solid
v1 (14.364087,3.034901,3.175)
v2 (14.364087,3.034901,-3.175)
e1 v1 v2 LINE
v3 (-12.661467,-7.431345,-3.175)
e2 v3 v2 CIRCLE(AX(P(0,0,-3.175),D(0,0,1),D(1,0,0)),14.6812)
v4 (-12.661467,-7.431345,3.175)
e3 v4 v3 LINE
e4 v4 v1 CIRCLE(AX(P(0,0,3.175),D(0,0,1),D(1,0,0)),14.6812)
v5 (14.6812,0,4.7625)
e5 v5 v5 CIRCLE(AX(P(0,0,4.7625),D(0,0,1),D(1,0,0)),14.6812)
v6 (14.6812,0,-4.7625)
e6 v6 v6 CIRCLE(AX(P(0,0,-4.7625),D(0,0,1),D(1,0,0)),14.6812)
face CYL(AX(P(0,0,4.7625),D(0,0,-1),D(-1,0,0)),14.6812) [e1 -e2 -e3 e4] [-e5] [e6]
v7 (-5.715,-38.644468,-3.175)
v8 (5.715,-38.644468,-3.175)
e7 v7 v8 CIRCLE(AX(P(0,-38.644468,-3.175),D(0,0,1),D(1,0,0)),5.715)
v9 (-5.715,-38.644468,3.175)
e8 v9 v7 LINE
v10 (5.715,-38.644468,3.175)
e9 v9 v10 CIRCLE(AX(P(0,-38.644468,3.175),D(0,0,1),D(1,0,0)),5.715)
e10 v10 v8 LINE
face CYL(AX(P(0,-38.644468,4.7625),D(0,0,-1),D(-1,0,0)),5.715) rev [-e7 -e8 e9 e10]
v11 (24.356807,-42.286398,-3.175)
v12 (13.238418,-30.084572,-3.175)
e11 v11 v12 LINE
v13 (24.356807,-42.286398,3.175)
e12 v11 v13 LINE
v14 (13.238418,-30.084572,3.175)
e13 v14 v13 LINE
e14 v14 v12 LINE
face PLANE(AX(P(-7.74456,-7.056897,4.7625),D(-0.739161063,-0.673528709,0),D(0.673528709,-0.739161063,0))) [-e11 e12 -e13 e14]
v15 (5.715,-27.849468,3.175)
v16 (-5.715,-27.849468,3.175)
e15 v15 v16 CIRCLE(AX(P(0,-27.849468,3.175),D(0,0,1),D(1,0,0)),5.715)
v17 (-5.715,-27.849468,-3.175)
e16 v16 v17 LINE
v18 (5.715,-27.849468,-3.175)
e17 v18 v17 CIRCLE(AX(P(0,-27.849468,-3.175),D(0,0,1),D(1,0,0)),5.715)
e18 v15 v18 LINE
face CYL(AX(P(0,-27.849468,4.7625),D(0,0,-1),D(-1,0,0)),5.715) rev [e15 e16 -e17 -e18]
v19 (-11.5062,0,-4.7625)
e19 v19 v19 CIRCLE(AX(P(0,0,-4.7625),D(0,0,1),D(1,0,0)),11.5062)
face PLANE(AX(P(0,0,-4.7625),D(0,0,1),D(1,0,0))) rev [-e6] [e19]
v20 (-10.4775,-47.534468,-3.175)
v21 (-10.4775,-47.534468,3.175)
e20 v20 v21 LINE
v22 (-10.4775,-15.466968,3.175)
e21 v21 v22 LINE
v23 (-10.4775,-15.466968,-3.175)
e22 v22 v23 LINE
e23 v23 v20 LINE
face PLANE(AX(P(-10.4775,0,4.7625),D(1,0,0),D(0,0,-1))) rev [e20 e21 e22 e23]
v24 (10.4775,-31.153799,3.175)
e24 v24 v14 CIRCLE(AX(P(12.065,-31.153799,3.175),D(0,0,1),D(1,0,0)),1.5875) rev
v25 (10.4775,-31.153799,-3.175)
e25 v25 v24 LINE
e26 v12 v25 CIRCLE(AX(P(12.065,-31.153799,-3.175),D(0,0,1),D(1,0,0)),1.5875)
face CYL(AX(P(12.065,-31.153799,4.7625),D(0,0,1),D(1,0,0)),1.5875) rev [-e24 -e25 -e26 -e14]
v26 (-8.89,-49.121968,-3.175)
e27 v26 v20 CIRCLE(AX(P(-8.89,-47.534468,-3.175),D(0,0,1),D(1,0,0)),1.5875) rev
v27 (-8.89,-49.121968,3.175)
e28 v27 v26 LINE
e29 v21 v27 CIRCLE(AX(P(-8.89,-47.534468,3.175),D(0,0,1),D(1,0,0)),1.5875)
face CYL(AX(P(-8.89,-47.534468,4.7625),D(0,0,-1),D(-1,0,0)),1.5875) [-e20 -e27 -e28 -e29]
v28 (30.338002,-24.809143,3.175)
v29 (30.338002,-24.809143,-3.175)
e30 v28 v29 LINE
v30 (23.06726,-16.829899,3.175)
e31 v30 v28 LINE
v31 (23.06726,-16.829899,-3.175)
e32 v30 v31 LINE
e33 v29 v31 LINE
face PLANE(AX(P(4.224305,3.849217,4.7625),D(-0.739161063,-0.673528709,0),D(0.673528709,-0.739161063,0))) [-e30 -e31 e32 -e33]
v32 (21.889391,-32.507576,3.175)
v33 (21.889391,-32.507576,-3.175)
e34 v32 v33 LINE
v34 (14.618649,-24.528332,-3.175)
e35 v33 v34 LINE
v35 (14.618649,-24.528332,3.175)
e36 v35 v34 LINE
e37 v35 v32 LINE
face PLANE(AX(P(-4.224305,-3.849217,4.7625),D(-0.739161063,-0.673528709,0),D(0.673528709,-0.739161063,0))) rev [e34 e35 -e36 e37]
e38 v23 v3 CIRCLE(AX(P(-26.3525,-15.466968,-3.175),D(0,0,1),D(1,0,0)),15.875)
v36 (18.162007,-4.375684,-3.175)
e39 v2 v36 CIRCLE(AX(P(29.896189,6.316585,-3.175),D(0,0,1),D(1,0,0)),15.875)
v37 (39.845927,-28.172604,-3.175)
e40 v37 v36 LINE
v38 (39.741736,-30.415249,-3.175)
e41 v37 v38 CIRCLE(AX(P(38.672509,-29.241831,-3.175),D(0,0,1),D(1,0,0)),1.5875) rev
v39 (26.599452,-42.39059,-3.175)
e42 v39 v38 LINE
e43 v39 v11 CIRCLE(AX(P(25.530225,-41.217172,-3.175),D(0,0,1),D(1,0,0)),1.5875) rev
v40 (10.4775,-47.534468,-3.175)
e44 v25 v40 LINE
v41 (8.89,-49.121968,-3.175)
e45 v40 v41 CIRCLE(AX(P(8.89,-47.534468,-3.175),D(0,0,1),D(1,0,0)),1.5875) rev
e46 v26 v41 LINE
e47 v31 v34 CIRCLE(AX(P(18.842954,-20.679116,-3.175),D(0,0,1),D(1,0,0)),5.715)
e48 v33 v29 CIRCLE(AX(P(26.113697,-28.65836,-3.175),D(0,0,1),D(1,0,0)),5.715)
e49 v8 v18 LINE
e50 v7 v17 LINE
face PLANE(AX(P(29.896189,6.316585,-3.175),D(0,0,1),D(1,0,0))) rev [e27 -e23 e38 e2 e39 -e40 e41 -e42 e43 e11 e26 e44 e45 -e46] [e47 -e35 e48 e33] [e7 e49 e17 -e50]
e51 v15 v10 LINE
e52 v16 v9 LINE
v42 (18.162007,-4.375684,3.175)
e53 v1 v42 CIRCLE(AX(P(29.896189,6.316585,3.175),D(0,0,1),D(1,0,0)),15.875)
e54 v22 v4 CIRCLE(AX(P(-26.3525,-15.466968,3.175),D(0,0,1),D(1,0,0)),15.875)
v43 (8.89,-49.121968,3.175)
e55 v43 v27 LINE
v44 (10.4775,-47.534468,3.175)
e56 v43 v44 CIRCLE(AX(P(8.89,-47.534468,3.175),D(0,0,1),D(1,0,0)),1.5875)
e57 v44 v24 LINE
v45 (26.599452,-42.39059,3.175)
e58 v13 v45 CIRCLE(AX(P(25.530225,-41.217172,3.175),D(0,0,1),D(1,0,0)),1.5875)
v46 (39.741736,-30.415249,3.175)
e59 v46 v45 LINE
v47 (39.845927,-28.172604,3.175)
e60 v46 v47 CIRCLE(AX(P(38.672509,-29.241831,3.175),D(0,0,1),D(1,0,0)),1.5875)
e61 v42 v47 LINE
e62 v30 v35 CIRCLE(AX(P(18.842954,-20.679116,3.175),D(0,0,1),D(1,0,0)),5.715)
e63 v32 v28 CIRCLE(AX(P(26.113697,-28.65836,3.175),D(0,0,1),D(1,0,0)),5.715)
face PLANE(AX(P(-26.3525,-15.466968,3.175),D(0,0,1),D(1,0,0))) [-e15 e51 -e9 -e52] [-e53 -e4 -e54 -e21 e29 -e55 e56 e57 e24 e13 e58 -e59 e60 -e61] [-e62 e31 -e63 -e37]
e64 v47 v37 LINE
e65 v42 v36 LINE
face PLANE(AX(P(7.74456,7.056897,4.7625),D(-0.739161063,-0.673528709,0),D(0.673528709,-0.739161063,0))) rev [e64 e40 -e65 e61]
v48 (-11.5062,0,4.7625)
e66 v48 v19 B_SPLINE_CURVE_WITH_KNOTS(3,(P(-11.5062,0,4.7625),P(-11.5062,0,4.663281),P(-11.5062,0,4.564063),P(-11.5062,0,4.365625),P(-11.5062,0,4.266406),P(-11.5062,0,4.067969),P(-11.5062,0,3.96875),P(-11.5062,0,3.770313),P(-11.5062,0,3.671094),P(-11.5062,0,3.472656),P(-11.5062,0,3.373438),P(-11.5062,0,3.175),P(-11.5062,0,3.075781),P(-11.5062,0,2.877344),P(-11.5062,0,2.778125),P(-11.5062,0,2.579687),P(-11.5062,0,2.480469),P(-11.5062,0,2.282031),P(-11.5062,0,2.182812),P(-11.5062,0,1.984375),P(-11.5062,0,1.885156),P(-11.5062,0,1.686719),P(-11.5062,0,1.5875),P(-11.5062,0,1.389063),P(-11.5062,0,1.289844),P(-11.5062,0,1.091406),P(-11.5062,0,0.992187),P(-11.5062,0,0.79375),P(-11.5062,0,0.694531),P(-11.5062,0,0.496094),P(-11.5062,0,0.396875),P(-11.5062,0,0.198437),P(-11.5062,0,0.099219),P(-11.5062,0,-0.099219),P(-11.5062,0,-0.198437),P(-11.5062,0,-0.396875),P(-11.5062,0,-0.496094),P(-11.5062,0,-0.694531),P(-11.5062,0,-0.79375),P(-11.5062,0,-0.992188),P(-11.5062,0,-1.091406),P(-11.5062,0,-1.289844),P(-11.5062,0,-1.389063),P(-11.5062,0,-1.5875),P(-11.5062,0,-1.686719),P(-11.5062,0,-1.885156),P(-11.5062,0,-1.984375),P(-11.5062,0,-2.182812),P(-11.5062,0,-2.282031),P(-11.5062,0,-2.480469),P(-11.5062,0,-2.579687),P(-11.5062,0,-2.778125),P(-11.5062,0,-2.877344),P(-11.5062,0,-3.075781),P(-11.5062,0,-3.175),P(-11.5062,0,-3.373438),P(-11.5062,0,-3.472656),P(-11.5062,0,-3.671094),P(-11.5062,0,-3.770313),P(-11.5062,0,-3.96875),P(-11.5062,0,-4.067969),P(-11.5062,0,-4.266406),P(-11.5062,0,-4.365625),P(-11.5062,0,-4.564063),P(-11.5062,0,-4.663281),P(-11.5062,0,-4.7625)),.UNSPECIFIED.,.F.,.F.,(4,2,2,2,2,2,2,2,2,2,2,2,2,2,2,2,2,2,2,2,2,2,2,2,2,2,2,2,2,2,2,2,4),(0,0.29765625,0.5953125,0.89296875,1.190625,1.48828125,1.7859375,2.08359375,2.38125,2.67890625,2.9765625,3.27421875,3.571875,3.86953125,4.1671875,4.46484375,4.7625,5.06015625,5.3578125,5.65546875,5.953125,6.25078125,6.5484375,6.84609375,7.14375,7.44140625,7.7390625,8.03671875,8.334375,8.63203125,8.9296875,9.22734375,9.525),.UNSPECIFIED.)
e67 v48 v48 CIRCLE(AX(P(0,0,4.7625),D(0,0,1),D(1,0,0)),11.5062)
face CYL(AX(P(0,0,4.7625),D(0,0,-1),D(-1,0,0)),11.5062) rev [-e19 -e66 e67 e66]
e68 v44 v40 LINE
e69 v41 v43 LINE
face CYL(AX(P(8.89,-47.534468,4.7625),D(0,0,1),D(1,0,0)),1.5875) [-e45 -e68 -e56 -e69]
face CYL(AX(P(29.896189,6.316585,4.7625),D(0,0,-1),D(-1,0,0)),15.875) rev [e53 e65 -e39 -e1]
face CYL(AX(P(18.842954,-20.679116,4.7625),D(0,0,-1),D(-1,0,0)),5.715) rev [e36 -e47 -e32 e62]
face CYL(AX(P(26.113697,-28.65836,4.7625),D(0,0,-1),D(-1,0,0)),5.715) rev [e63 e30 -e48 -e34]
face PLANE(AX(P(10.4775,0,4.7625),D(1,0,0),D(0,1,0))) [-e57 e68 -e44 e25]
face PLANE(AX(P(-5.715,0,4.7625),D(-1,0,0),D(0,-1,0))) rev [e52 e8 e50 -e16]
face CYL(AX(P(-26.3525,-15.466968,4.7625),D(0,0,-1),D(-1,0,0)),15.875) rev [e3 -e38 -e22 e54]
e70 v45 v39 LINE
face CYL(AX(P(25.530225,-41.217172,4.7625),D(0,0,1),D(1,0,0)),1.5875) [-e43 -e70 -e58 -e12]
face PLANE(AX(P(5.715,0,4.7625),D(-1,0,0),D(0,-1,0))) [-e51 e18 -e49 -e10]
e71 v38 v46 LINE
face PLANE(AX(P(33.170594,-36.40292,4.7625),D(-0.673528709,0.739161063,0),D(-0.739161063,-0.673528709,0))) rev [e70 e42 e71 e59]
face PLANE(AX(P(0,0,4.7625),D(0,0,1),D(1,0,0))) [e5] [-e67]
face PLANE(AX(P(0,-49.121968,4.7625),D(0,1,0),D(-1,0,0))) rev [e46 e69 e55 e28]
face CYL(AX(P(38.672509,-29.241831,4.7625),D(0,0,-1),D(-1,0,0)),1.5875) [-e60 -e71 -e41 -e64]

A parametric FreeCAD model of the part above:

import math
import FreeCAD as App
import Part
import Sketcher
from FreeCAD import Vector
Q = App.Units.Quantity


def edges_at(feature, points):
    """Names of the edges that pass closest to the given points."""
    edges = feature.Shape.Edges
    near = lambda p: min(range(len(edges)), key=lambda i: edges[i].distToShape(Part.Vertex(*p))[0])
    return sorted({f"Edge{near(p) + 1}" for p in points})

doc = App.newDocument("Part")
body = doc.addObject("PartDesign::Body", "Body")

# Sketch on XY plane
sketch1 = body.newObject("Sketcher::SketchObject", "Sketch")
sketch1.AttachmentSupport = (doc.getObject("XY_Plane"), [""])
sketch1.MapMode = "FlatFace"
sketch1.addGeometry([
    Part.ArcOfCircle(Part.Circle(Vector(-26.3525, -15.466968, 0), Vector(0, 0, 1), 15.875), math.radians(0), math.radians(30.409782)),  # 0
    Part.LineSegment(Vector(-10.4775, -15.466968, 0), Vector(-10.4775, -49.121968, 0)),  # 1
    Part.LineSegment(Vector(-10.4775, -49.121968, 0), Vector(10.4775, -49.121968, 0)),  # 2
    Part.LineSegment(Vector(10.4775, -49.121968, 0), Vector(10.4775, -27.054615, 0)),  # 3
    Part.LineSegment(Vector(10.4775, -27.054615, 0), Vector(25.426034, -43.459817, 0)),  # 4
    Part.LineSegment(Vector(25.426034, -43.459817, 0), Vector(40.915154, -29.346023, 0)),  # 5
    Part.LineSegment(Vector(40.915154, -29.346023, 0), Vector(18.162007, -4.375684, 0)),  # 6
    Part.ArcOfCircle(Part.Circle(Vector(29.896189, 6.316585, 0), Vector(0, 0, 1), 15.875), math.radians(-168.069782), math.radians(-137.66)),  # 7
    Part.ArcOfCircle(Part.Circle(Vector(0, 0, 0), Vector(0, 0, 1), 14.6812), math.radians(11.930218), math.radians(210.409782)),  # 8
    Part.LineSegment(Vector(5.715, -27.849468, 0), Vector(5.715, -38.644468, 0)),  # 9
    Part.ArcOfCircle(Part.Circle(Vector(0, -38.644468, 0), Vector(0, 0, 1), 5.715), math.radians(180), math.radians(360)),  # 10
    Part.LineSegment(Vector(-5.715, -38.644468, 0), Vector(-5.715, -27.849468, 0)),  # 11
    Part.ArcOfCircle(Part.Circle(Vector(0, -27.849468, 0), Vector(0, 0, 1), 5.715), math.radians(0), math.radians(180)),  # 12
    Part.LineSegment(Vector(23.06726, -16.829899, 0), Vector(30.338002, -24.809143, 0)),  # 13
    Part.ArcOfCircle(Part.Circle(Vector(26.113697, -28.65836, 0), Vector(0, 0, 1), 5.715), math.radians(-137.66), math.radians(42.34)),  # 14
    Part.LineSegment(Vector(21.889391, -32.507576, 0), Vector(14.618649, -24.528332, 0)),  # 15
    Part.ArcOfCircle(Part.Circle(Vector(18.842954, -20.679116, 0), Vector(0, 0, 1), 5.715), math.radians(42.34), math.radians(222.34)),  # 16
    Part.Circle(Vector(0, 0, 0), Vector(0, 0, 1), 11.5062),  # 17
], False)
sketch1.addConstraint([
    Sketcher.Constraint("Tangent", 0, 1, 1, 1),
    Sketcher.Constraint("Coincident", 1, 2, 2, 1),
    Sketcher.Constraint("Coincident", 2, 2, 3, 1),
    Sketcher.Constraint("Coincident", 3, 2, 4, 1),
    Sketcher.Constraint("Coincident", 4, 2, 5, 1),
    Sketcher.Constraint("Coincident", 5, 2, 6, 1),
    Sketcher.Constraint("Tangent", 6, 2, 7, 2),
    Sketcher.Constraint("Tangent", 7, 1, 8, 1),
    Sketcher.Constraint("Tangent", 8, 2, 0, 2),
    Sketcher.Constraint("Tangent", 9, 2, 10, 2),
    Sketcher.Constraint("Tangent", 10, 1, 11, 1),
    Sketcher.Constraint("Tangent", 11, 2, 12, 2),
    Sketcher.Constraint("Tangent", 12, 1, 9, 1),
    Sketcher.Constraint("Tangent", 13, 2, 14, 2),
    Sketcher.Constraint("Tangent", 14, 1, 15, 1),
    Sketcher.Constraint("Tangent", 15, 2, 16, 2),
    Sketcher.Constraint("Tangent", 16, 1, 13, 1),
    Sketcher.Constraint("Vertical", 1),
    Sketcher.Constraint("Horizontal", 2),
    Sketcher.Constraint("Vertical", 3),
    Sketcher.Constraint("Vertical", 9),
    Sketcher.Constraint("Vertical", 11),
    Sketcher.Constraint("Coincident", 8, 3, -1, 1),
    Sketcher.Constraint("Coincident", 17, 3, -1, 1),
    Sketcher.Constraint("Equal", 0, 7),
    Sketcher.Constraint("Equal", 12, 14),
    Sketcher.Constraint("Equal", 14, 16),
    Sketcher.Constraint("PointOnObject", 10, 3, -2),
    Sketcher.Constraint("Perpendicular", 4, 5),
    Sketcher.Constraint("Perpendicular", 5, 6),
    Sketcher.Constraint("Parallel", 6, 13),
    Sketcher.Constraint("Diameter", 17, Q("0.906 in")),
    Sketcher.Constraint("Radius", 0, Q("0.625 in")),
    Sketcher.Constraint("Radius", 8, Q("0.578 in")),
    Sketcher.Constraint("Radius", 10, Q("0.225 in")),
    Sketcher.Constraint("Distance", 6, Q("1.33 in")),
    Sketcher.Constraint("DistanceX", 2, 1, 2, 2, Q("0.825 in")),
    Sketcher.Constraint("DistanceY", 1, 2, 1, 1, Q("1.325 in")),
    Sketcher.Constraint("DistanceY", 9, 2, 9, 1, Q("0.425 in")),
    Sketcher.Constraint("Angle", 4, Q("-47.66 deg")),
    Sketcher.Constraint("Distance", 5, Q("0.825 in")),
    Sketcher.Constraint("Distance", 13, Q("0.425 in")),
    Sketcher.Constraint("DistanceX", 9, 2, 2, 2, Q("0.1875 in")),
    Sketcher.Constraint("DistanceY", 10, 3, 0, 3, Q("0.9125 in")),
    Sketcher.Constraint("DistanceX", 7, 1, 7, 3, Q("0.6115001 in")),
    Sketcher.Constraint("DistanceY", 16, 1, -1, 1, Q("16.829899 mm")),
    Sketcher.Constraint("DistanceX", 16, 3, 5, 2, Q("22.0722 mm")),
])
pad1 = body.newObject("PartDesign::Pad", "Pad")
pad1.Profile = sketch1
pad1.Length = Q("0.375 in")
pad1.Midplane = True

# Sketch on XY plane
sketch2 = body.newObject("Sketcher::SketchObject", "Sketch001")
sketch2.AttachmentSupport = (doc.getObject("XY_Plane"), [""])
sketch2.MapMode = "FlatFace"
sketch2.AttachmentOffset = App.Placement(Vector(0, 0, 0.1875 * 25.4), App.Rotation())
sketch2.addGeometry([
    Part.ArcOfCircle(Part.Circle(Vector(0, 0, 0), Vector(0, 0, 1), 14.6812), math.radians(-149.590218), math.radians(11.930218)),  # 0
    Part.ArcOfCircle(Part.Circle(Vector(-26.3525, -15.466968, 0), Vector(0, 0, 1), 15.875), math.radians(0), math.radians(30.409782)),  # 1
    Part.LineSegment(Vector(-10.4775, -15.466968, 0), Vector(-10.4775, -49.121968, 0)),  # 2
    Part.LineSegment(Vector(-10.4775, -49.121968, 0), Vector(10.4775, -49.121968, 0)),  # 3
    Part.LineSegment(Vector(10.4775, -49.121968, 0), Vector(10.4775, -27.054615, 0)),  # 4
    Part.LineSegment(Vector(10.4775, -27.054615, 0), Vector(25.426034, -43.459817, 0)),  # 5
    Part.LineSegment(Vector(25.426034, -43.459817, 0), Vector(40.915154, -29.346023, 0)),  # 6
    Part.LineSegment(Vector(40.915154, -29.346023, 0), Vector(18.162007, -4.375684, 0)),  # 7
    Part.ArcOfCircle(Part.Circle(Vector(29.896189, 6.316585, 0), Vector(0, 0, 1), 15.875), math.radians(-168.069782), math.radians(-137.66)),  # 8
    Part.LineSegment(Vector(5.715, -27.849468, 0), Vector(5.715, -38.644468, 0)),  # 9
    Part.ArcOfCircle(Part.Circle(Vector(0, -38.644468, 0), Vector(0, 0, 1), 5.715), math.radians(180), math.radians(360)),  # 10
    Part.LineSegment(Vector(-5.715, -38.644468, 0), Vector(-5.715, -27.849468, 0)),  # 11
    Part.ArcOfCircle(Part.Circle(Vector(0, -27.849468, 0), Vector(0, 0, 1), 5.715), math.radians(0), math.radians(180)),  # 12
    Part.LineSegment(Vector(23.06726, -16.829899, 0), Vector(30.338002, -24.809143, 0)),  # 13
    Part.ArcOfCircle(Part.Circle(Vector(26.113697, -28.65836, 0), Vector(0, 0, 1), 5.715), math.radians(-137.66), math.radians(42.34)),  # 14
    Part.LineSegment(Vector(21.889391, -32.507576, 0), Vector(14.618649, -24.528332, 0)),  # 15
    Part.ArcOfCircle(Part.Circle(Vector(18.842954, -20.679116, 0), Vector(0, 0, 1), 5.715), math.radians(42.34), math.radians(222.34)),  # 16
], False)
sketch2.addConstraint([
    Sketcher.Constraint("Tangent", 0, 1, 1, 2),
    Sketcher.Constraint("Tangent", 1, 1, 2, 1),
    Sketcher.Constraint("Coincident", 2, 2, 3, 1),
    Sketcher.Constraint("Coincident", 3, 2, 4, 1),
    Sketcher.Constraint("Coincident", 4, 2, 5, 1),
    Sketcher.Constraint("Coincident", 5, 2, 6, 1),
    Sketcher.Constraint("Coincident", 6, 2, 7, 1),
    Sketcher.Constraint("Tangent", 7, 2, 8, 2),
    Sketcher.Constraint("Tangent", 8, 1, 0, 2),
    Sketcher.Constraint("Tangent", 9, 2, 10, 2),
    Sketcher.Constraint("Tangent", 10, 1, 11, 1),
    Sketcher.Constraint("Tangent", 11, 2, 12, 2),
    Sketcher.Constraint("Tangent", 12, 1, 9, 1),
    Sketcher.Constraint("Tangent", 13, 2, 14, 2),
    Sketcher.Constraint("Tangent", 14, 1, 15, 1),
    Sketcher.Constraint("Tangent", 15, 2, 16, 2),
    Sketcher.Constraint("Tangent", 16, 1, 13, 1),
    Sketcher.Constraint("Vertical", 2),
    Sketcher.Constraint("Horizontal", 3),
    Sketcher.Constraint("Vertical", 4),
    Sketcher.Constraint("Vertical", 9),
    Sketcher.Constraint("Vertical", 11),
    Sketcher.Constraint("Coincident", 0, 3, -1, 1),
    Sketcher.Constraint("Equal", 1, 8),
    Sketcher.Constraint("Equal", 12, 14),
    Sketcher.Constraint("Equal", 14, 16),
    Sketcher.Constraint("PointOnObject", 10, 3, -2),
    Sketcher.Constraint("Perpendicular", 5, 6),
    Sketcher.Constraint("Perpendicular", 6, 7),
    Sketcher.Constraint("Parallel", 7, 13),
    Sketcher.Constraint("Radius", 0, Q("0.578 in")),
    Sketcher.Constraint("Radius", 1, Q("0.625 in")),
    Sketcher.Constraint("Radius", 10, Q("0.225 in")),
    Sketcher.Constraint("Distance", 7, Q("1.33 in")),
    Sketcher.Constraint("DistanceX", 3, 1, 3, 2, Q("0.825 in")),
    Sketcher.Constraint("DistanceY", 2, 2, 2, 1, Q("1.325 in")),
    Sketcher.Constraint("DistanceY", 9, 2, 9, 1, Q("0.425 in")),
    Sketcher.Constraint("Angle", 5, Q("-47.66 deg")),
    Sketcher.Constraint("Distance", 6, Q("0.825 in")),
    Sketcher.Constraint("Distance", 13, Q("0.425 in")),
    Sketcher.Constraint("DistanceX", 9, 2, 3, 2, Q("0.1875 in")),
    Sketcher.Constraint("DistanceY", 10, 3, 1, 3, Q("0.9125 in")),
    Sketcher.Constraint("DistanceX", 8, 1, 8, 3, Q("0.6115001 in")),
    Sketcher.Constraint("DistanceY", 16, 1, -1, 1, Q("16.829899 mm")),
    Sketcher.Constraint("DistanceX", 16, 3, 6, 2, Q("22.0722 mm")),
])
pocket1 = body.newObject("PartDesign::Pocket", "Pocket")
pocket1.Profile = sketch2
pocket1.Length = Q("0.0625 in")

# Sketch on XY plane
sketch3 = body.newObject("Sketcher::SketchObject", "Sketch002")
sketch3.AttachmentSupport = (doc.getObject("XY_Plane"), [""])
sketch3.MapMode = "FlatFace"
sketch3.AttachmentOffset = App.Placement(Vector(0, 0, -0.125 * 25.4), App.Rotation())
sketch3.addGeometry([
    Part.ArcOfCircle(Part.Circle(Vector(0, 0, 0), Vector(0, 0, 1), 14.6812), math.radians(-149.590218), math.radians(11.930218)),  # 0
    Part.ArcOfCircle(Part.Circle(Vector(-26.3525, -15.466968, 0), Vector(0, 0, 1), 15.875), math.radians(0), math.radians(30.409782)),  # 1
    Part.LineSegment(Vector(-10.4775, -15.466968, 0), Vector(-10.4775, -49.121968, 0)),  # 2
    Part.LineSegment(Vector(-10.4775, -49.121968, 0), Vector(10.4775, -49.121968, 0)),  # 3
    Part.LineSegment(Vector(10.4775, -49.121968, 0), Vector(10.4775, -27.054615, 0)),  # 4
    Part.LineSegment(Vector(10.4775, -27.054615, 0), Vector(25.426034, -43.459817, 0)),  # 5
    Part.LineSegment(Vector(25.426034, -43.459817, 0), Vector(40.915154, -29.346023, 0)),  # 6
    Part.LineSegment(Vector(40.915154, -29.346023, 0), Vector(18.162007, -4.375684, 0)),  # 7
    Part.ArcOfCircle(Part.Circle(Vector(29.896189, 6.316585, 0), Vector(0, 0, 1), 15.875), math.radians(-168.069782), math.radians(-137.66)),  # 8
    Part.LineSegment(Vector(5.715, -27.849468, 0), Vector(5.715, -38.644468, 0)),  # 9
    Part.ArcOfCircle(Part.Circle(Vector(0, -38.644468, 0), Vector(0, 0, 1), 5.715), math.radians(180), math.radians(360)),  # 10
    Part.LineSegment(Vector(-5.715, -38.644468, 0), Vector(-5.715, -27.849468, 0)),  # 11
    Part.ArcOfCircle(Part.Circle(Vector(0, -27.849468, 0), Vector(0, 0, 1), 5.715), math.radians(0), math.radians(180)),  # 12
    Part.LineSegment(Vector(23.06726, -16.829899, 0), Vector(30.338002, -24.809143, 0)),  # 13
    Part.ArcOfCircle(Part.Circle(Vector(26.113697, -28.65836, 0), Vector(0, 0, 1), 5.715), math.radians(-137.66), math.radians(42.34)),  # 14
    Part.LineSegment(Vector(21.889391, -32.507576, 0), Vector(14.618649, -24.528332, 0)),  # 15
    Part.ArcOfCircle(Part.Circle(Vector(18.842954, -20.679116, 0), Vector(0, 0, 1), 5.715), math.radians(42.34), math.radians(222.34)),  # 16
], False)
sketch3.addConstraint([
    Sketcher.Constraint("Tangent", 0, 1, 1, 2),
    Sketcher.Constraint("Tangent", 1, 1, 2, 1),
    Sketcher.Constraint("Coincident", 2, 2, 3, 1),
    Sketcher.Constraint("Coincident", 3, 2, 4, 1),
    Sketcher.Constraint("Coincident", 4, 2, 5, 1),
    Sketcher.Constraint("Coincident", 5, 2, 6, 1),
    Sketcher.Constraint("Coincident", 6, 2, 7, 1),
    Sketcher.Constraint("Tangent", 7, 2, 8, 2),
    Sketcher.Constraint("Tangent", 8, 1, 0, 2),
    Sketcher.Constraint("Tangent", 9, 2, 10, 2),
    Sketcher.Constraint("Tangent", 10, 1, 11, 1),
    Sketcher.Constraint("Tangent", 11, 2, 12, 2),
    Sketcher.Constraint("Tangent", 12, 1, 9, 1),
    Sketcher.Constraint("Tangent", 13, 2, 14, 2),
    Sketcher.Constraint("Tangent", 14, 1, 15, 1),
    Sketcher.Constraint("Tangent", 15, 2, 16, 2),
    Sketcher.Constraint("Tangent", 16, 1, 13, 1),
    Sketcher.Constraint("Vertical", 2),
    Sketcher.Constraint("Horizontal", 3),
    Sketcher.Constraint("Vertical", 4),
    Sketcher.Constraint("Vertical", 9),
    Sketcher.Constraint("Vertical", 11),
    Sketcher.Constraint("Coincident", 0, 3, -1, 1),
    Sketcher.Constraint("Equal", 1, 8),
    Sketcher.Constraint("Equal", 12, 14),
    Sketcher.Constraint("Equal", 14, 16),
    Sketcher.Constraint("PointOnObject", 10, 3, -2),
    Sketcher.Constraint("Perpendicular", 5, 6),
    Sketcher.Constraint("Perpendicular", 6, 7),
    Sketcher.Constraint("Parallel", 7, 13),
    Sketcher.Constraint("Radius", 0, Q("0.578 in")),
    Sketcher.Constraint("Radius", 1, Q("0.625 in")),
    Sketcher.Constraint("Radius", 10, Q("0.225 in")),
    Sketcher.Constraint("Distance", 7, Q("1.33 in")),
    Sketcher.Constraint("DistanceX", 3, 1, 3, 2, Q("0.825 in")),
    Sketcher.Constraint("DistanceY", 2, 2, 2, 1, Q("1.325 in")),
    Sketcher.Constraint("DistanceY", 9, 2, 9, 1, Q("0.425 in")),
    Sketcher.Constraint("Angle", 5, Q("-47.66 deg")),
    Sketcher.Constraint("Distance", 6, Q("0.825 in")),
    Sketcher.Constraint("Distance", 13, Q("0.425 in")),
    Sketcher.Constraint("DistanceX", 9, 2, 3, 2, Q("0.1875 in")),
    Sketcher.Constraint("DistanceY", 10, 3, 1, 3, Q("0.9125 in")),
    Sketcher.Constraint("DistanceX", 8, 1, 8, 3, Q("0.6115001 in")),
    Sketcher.Constraint("DistanceY", 16, 1, -1, 1, Q("16.829899 mm")),
    Sketcher.Constraint("DistanceX", 16, 3, 6, 2, Q("22.0722 mm")),
])
pocket2 = body.newObject("PartDesign::Pocket", "Pocket001")
pocket2.Profile = sketch3
pocket2.Length = Q("0.0625 in")
doc.recompute()

fillet = body.newObject("PartDesign::Fillet", "Fillet")
fillet.Base = (pocket2, edges_at(pocket2, [
    (40.915, -29.346, 0),
    (25.426, -43.46, 0),
    (10.477, -27.055, 0),
    (10.477, -49.122, 0),
    (-10.477, -49.122, 0),
]))
fillet.Radius = Q("0.0625 in")

doc.recompute()
